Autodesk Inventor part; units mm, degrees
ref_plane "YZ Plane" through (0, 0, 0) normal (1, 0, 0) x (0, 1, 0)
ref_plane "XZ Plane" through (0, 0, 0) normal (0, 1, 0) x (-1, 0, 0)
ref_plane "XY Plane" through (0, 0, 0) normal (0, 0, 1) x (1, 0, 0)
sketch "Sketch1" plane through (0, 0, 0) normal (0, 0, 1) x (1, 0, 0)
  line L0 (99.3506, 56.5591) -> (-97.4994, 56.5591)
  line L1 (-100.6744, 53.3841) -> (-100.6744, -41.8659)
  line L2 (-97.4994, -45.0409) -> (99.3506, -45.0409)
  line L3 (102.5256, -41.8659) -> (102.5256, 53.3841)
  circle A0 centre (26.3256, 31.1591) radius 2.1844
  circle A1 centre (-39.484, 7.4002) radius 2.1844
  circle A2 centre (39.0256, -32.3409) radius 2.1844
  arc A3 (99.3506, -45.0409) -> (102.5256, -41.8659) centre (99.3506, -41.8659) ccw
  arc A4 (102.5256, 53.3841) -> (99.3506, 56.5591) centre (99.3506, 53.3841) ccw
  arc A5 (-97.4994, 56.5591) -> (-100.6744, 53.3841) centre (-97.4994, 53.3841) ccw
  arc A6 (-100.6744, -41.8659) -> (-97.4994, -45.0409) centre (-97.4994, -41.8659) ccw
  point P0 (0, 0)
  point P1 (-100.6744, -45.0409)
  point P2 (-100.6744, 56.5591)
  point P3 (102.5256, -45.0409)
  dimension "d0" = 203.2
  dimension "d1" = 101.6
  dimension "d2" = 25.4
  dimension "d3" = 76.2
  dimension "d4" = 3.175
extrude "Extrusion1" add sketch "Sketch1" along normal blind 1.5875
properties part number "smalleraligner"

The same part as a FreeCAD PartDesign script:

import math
import FreeCAD as App
import Part
import Sketcher

V = App.Vector
Q = App.Units.Quantity

doc = App.newDocument("Part")
body = doc.addObject("PartDesign::Body", "Body")

sketch1 = doc.addObject("Sketcher::SketchObject", "Sketch")
body.addObject(sketch1)
sketch1.AttachmentSupport = (doc.XY_Plane, [""])
sketch1.MapMode = "FlatFace"
sketch1.addGeometry(Part.ArcOfCircle(Part.Circle(V(99.4, 53.4, 0), V(0, 0, 1), 3.2), math.radians(0), math.radians(90)), False)
sketch1.addGeometry(Part.LineSegment(V(99.4, 56.6, 0), V(-97.5, 56.6, 0)), False)
sketch1.addGeometry(Part.ArcOfCircle(Part.Circle(V(-97.5, 53.4, 0), V(0, 0, 1), 3.2), math.radians(90), math.radians(180)), False)
sketch1.addGeometry(Part.LineSegment(V(-100.7, 53.4, 0), V(-100.7, -41.9, 0)), False)
sketch1.addGeometry(Part.ArcOfCircle(Part.Circle(V(-97.5, -41.9, 0), V(0, 0, 1), 3.2), math.radians(180), math.radians(270)), False)
sketch1.addGeometry(Part.LineSegment(V(-97.5, -45, 0), V(99.4, -45, 0)), False)
sketch1.addGeometry(Part.ArcOfCircle(Part.Circle(V(99.4, -41.9, 0), V(0, 0, 1), 3.2), math.radians(-90), math.radians(0)), False)
sketch1.addGeometry(Part.LineSegment(V(102.5, -41.9, 0), V(102.5, 53.4, 0)), False)
sketch1.addGeometry(Part.Circle(V(39, -32.3, 0), V(0, 0, 1), 2.2), False)
sketch1.addGeometry(Part.Circle(V(-39.5, 7.4, 0), V(0, 0, 1), 2.2), False)
sketch1.addGeometry(Part.Circle(V(26.3, 31.2, 0), V(0, 0, 1), 2.2), False)
sketch1.addConstraint(Sketcher.Constraint("Tangent", 0, 2, 1, 1))
sketch1.addConstraint(Sketcher.Constraint("Tangent", 1, 2, 2, 1))
sketch1.addConstraint(Sketcher.Constraint("Tangent", 2, 2, 3, 1))
sketch1.addConstraint(Sketcher.Constraint("Tangent", 3, 2, 4, 1))
sketch1.addConstraint(Sketcher.Constraint("Tangent", 4, 2, 5, 1))
sketch1.addConstraint(Sketcher.Constraint("Tangent", 5, 2, 6, 1))
sketch1.addConstraint(Sketcher.Constraint("Tangent", 6, 2, 7, 1))
sketch1.addConstraint(Sketcher.Constraint("Tangent", 7, 2, 0, 1))
sketch1.addConstraint(Sketcher.Constraint("Horizontal", 1))
sketch1.addConstraint(Sketcher.Constraint("Vertical", 3))
sketch1.addConstraint(Sketcher.Constraint("Horizontal", 5))
sketch1.addConstraint(Sketcher.Constraint("Vertical", 7))
sketch1.addConstraint(Sketcher.Constraint("Equal", 0, 2))
sketch1.addConstraint(Sketcher.Constraint("Equal", 2, 4))
sketch1.addConstraint(Sketcher.Constraint("Equal", 4, 6))
sketch1.addConstraint(Sketcher.Constraint("Equal", 8, 9))
sketch1.addConstraint(Sketcher.Constraint("Equal", 9, 10))
sketch1.addConstraint(Sketcher.Constraint("Radius", 0, Q("0.125 in")))
sketch1.addConstraint(Sketcher.Constraint("DistanceY", 10, 3, 0, 2, Q("1 in")))
sketch1.addConstraint(Sketcher.Constraint("DistanceY", 5, 2, 0, 2, Q("4 in")))
sketch1.addConstraint(Sketcher.Constraint("DistanceX", 10, 3, 7, 2, Q("3 in")))
sketch1.addConstraint(Sketcher.Constraint("Diameter", 8, Q("0.172 in")))
sketch1.addConstraint(Sketcher.Constraint("DistanceX", 2, 2, 10, 3, Q("5 in")))
sketch1.addConstraint(Sketcher.Constraint("DistanceX", 10, 3, 8, 3, Q("0.5 in")))
sketch1.addConstraint(Sketcher.Constraint("DistanceY", 8, 3, 10, 3, Q("2.5 in")))
sketch1.addConstraint(Sketcher.Constraint("DistanceX", 9, 3, -1, 1, Q("1.5545 in")))
sketch1.addConstraint(Sketcher.Constraint("DistanceY", 9, 3, 2, 3, Q("1.8104 in")))
sketch1.addConstraint(Sketcher.Constraint("DistanceX", -1, 1, 0, 3, Q("99.3506 mm")))
sketch1.addConstraint(Sketcher.Constraint("DistanceY", -1, 1, 0, 3, Q("53.384 mm")))
pad1 = doc.addObject("PartDesign::Pad", "Pad")
body.addObject(pad1)
pad1.Profile = sketch1
pad1.Length = Q("0.0625 in")

doc.recompute()
